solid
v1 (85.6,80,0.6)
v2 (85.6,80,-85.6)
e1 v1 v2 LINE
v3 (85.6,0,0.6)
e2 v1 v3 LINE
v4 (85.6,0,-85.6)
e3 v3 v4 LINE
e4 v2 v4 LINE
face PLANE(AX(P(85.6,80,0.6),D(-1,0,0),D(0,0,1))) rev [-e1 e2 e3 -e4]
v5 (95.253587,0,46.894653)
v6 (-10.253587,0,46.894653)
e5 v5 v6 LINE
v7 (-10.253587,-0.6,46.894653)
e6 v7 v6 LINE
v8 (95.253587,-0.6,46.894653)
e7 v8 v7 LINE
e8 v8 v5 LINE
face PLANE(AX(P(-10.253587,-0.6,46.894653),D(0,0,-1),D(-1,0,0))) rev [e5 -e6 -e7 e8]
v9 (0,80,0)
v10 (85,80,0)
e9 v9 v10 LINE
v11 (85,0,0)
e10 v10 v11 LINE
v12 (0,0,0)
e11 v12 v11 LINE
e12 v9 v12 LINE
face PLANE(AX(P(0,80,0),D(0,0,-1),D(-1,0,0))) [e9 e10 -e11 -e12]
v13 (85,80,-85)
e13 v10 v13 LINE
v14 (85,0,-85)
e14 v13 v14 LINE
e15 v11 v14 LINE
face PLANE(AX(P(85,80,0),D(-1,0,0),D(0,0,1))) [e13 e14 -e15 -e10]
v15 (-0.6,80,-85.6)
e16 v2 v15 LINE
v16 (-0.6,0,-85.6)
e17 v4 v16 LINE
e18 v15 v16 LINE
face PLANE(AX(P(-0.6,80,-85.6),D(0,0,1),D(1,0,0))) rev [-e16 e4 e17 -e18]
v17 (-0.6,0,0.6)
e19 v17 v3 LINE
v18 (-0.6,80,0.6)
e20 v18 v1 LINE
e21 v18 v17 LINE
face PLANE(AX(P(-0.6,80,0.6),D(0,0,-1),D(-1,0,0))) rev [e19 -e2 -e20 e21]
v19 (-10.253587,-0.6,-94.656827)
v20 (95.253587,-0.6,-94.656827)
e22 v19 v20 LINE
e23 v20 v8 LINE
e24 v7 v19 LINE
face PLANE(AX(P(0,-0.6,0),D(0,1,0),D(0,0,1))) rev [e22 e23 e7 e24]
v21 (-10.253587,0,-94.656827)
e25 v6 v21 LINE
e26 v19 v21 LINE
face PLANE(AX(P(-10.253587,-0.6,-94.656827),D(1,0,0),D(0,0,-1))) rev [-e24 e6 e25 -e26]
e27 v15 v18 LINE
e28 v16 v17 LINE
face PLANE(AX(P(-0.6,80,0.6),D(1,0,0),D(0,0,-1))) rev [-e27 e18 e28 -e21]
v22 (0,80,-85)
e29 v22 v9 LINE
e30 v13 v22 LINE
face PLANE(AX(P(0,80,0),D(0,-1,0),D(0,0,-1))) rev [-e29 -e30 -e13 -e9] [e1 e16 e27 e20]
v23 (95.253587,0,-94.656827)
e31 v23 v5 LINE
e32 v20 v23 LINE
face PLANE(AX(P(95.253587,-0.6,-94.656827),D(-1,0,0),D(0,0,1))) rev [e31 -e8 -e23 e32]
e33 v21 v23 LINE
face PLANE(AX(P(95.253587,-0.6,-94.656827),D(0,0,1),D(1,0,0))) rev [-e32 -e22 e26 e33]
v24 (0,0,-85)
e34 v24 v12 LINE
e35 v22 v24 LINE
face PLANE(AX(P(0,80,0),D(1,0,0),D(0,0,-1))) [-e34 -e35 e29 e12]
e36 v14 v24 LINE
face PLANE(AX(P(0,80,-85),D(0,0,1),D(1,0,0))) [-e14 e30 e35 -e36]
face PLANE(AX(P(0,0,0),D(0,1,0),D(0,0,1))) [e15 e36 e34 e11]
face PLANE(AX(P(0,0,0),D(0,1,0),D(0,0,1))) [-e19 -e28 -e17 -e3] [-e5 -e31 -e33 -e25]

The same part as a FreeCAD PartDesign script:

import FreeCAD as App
import Part
import Sketcher
from FreeCAD import Vector


def add_polygon(sketch, points):
    """Adds a closed chain of lines whose ends are joined by coincident constraints."""
    first, n = sketch.GeometryCount, len(points)
    for a, b in zip(points, points[1:] + points[:1]):
        sketch.addGeometry(Part.LineSegment(App.Vector(*a, 0), App.Vector(*b, 0)), False)
    for i in range(n):
        sketch.addConstraint(Sketcher.Constraint("Coincident", first + i, 2, first + (i + 1) % n, 1))

doc = App.newDocument("Part")
body = doc.addObject("PartDesign::Body", "Body")

sketch1 = body.newObject("Sketcher::SketchObject", "Sketch")
sketch1.AttachmentSupport = (doc.getObject("XZ_Plane"), [""])
sketch1.MapMode = "FlatFace"
add_polygon(sketch1, [(-1, -86), (-1, 1), (86, 1), (86, -86)])
add_polygon(sketch1, [(85, 0), (0, 0), (0, -85), (85, -85)])
sketch1.addConstraint(Sketcher.Constraint("Vertical", 0))
sketch1.addConstraint(Sketcher.Constraint("Horizontal", 1))
sketch1.addConstraint(Sketcher.Constraint("Vertical", 2))
sketch1.addConstraint(Sketcher.Constraint("Horizontal", 3))
sketch1.addConstraint(Sketcher.Constraint("Horizontal", 4))
sketch1.addConstraint(Sketcher.Constraint("Vertical", 5))
sketch1.addConstraint(Sketcher.Constraint("Horizontal", 6))
sketch1.addConstraint(Sketcher.Constraint("Vertical", 7))
sketch1.addConstraint(Sketcher.Constraint("Coincident", 4, 2, -1, 1))
sketch1.addConstraint(Sketcher.Constraint("Equal", 3, 0))
sketch1.addConstraint(Sketcher.Constraint("Equal", 6, 5))
sketch1.addConstraint(Sketcher.Constraint("DistanceX", 4, 2, 4, 1, 85.0))
sketch1.addConstraint(Sketcher.Constraint("DistanceX", 1, 1, 1, 2, 86.2))
sketch1.addConstraint(Sketcher.Constraint("DistanceX", 0, 2, -1, 1, 0.6))
sketch1.addConstraint(Sketcher.Constraint("DistanceY", -1, 1, 0, 2, 0.6))
pad1 = body.newObject("PartDesign::Pad", "Pad")
pad1.Profile = sketch1
pad1.Length = 80
pad1.Reversed = True

sketch2 = body.newObject("Sketcher::SketchObject", "Sketch001")
sketch2.AttachmentSupport = (doc.getObject("XZ_Plane"), [""])
sketch2.MapMode = "FlatFace"
add_polygon(sketch2, [(-10, 47), (-10, -95), (95, -95), (95, 47)])
sketch2.addConstraint(Sketcher.Constraint("Vertical", 0))
sketch2.addConstraint(Sketcher.Constraint("Horizontal", 1))
sketch2.addConstraint(Sketcher.Constraint("Vertical", 2))
sketch2.addConstraint(Sketcher.Constraint("Horizontal", 3))
sketch2.addConstraint(Sketcher.Constraint("DistanceY", 0, 2, 0, 1, 141.55148))
sketch2.addConstraint(Sketcher.Constraint("DistanceX", 1, 1, 1, 2, 105.507174))
sketch2.addConstraint(Sketcher.Constraint("DistanceX", 0, 2, -1, 1, 10.253587))
sketch2.addConstraint(Sketcher.Constraint("DistanceY", 0, 2, -1, 1, 94.656827))
pad2 = body.newObject("PartDesign::Pad", "Pad001")
pad2.Profile = sketch2
pad2.Length = 0.6

doc.recompute()
